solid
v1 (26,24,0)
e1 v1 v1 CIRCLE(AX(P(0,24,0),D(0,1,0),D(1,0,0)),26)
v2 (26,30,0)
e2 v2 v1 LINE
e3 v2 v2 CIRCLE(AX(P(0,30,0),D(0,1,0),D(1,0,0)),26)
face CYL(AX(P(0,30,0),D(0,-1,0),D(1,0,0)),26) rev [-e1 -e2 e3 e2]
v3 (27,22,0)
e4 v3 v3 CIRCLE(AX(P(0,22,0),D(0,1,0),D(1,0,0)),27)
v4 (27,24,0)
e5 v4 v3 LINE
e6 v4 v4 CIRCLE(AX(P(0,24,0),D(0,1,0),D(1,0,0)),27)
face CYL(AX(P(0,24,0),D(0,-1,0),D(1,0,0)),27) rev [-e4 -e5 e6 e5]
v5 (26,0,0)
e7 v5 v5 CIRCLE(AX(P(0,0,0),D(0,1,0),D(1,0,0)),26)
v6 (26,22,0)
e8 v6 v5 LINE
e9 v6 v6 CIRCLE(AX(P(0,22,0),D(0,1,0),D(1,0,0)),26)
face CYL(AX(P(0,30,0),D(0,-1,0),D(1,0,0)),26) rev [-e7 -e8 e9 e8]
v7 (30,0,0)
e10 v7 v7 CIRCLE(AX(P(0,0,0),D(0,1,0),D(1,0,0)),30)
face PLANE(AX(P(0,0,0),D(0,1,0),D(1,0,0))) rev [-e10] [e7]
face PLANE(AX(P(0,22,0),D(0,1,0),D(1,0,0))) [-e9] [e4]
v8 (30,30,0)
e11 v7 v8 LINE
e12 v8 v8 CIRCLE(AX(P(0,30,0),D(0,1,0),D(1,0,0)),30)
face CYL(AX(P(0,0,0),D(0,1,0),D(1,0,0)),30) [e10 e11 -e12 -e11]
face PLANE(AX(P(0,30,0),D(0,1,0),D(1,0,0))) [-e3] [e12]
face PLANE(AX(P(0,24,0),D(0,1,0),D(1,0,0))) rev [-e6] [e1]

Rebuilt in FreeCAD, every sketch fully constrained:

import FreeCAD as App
import Part
import Sketcher
from FreeCAD import Vector

doc = App.newDocument("Part")
body = doc.addObject("PartDesign::Body", "Body")

sketch1 = doc.addObject("Sketcher::SketchObject", "Sketch")
body.addObject(sketch1)
sketch1.AttachmentSupport = (doc.XY_Plane, [""])
sketch1.MapMode = "FlatFace"
sketch1.addGeometry(Part.LineSegment(Vector(26, 22, 0), Vector(26, 0, 0)), False)
sketch1.addGeometry(Part.LineSegment(Vector(26, 0, 0), Vector(30, 0, 0)), False)
sketch1.addGeometry(Part.LineSegment(Vector(30, 0, 0), Vector(30, 30, 0)), False)
sketch1.addGeometry(Part.LineSegment(Vector(30, 30, 0), Vector(26, 30, 0)), False)
sketch1.addGeometry(Part.LineSegment(Vector(26, 30, 0), Vector(26, 24, 0)), False)
sketch1.addGeometry(Part.LineSegment(Vector(26, 24, 0), Vector(27, 24, 0)), False)
sketch1.addGeometry(Part.LineSegment(Vector(27, 24, 0), Vector(27, 22, 0)), False)
sketch1.addGeometry(Part.LineSegment(Vector(27, 22, 0), Vector(26, 22, 0)), False)
sketch1.addConstraint(Sketcher.Constraint("Coincident", 0, 2, 1, 1))
sketch1.addConstraint(Sketcher.Constraint("Coincident", 1, 2, 2, 1))
sketch1.addConstraint(Sketcher.Constraint("Coincident", 2, 2, 3, 1))
sketch1.addConstraint(Sketcher.Constraint("Coincident", 3, 2, 4, 1))
sketch1.addConstraint(Sketcher.Constraint("Coincident", 4, 2, 5, 1))
sketch1.addConstraint(Sketcher.Constraint("Coincident", 5, 2, 6, 1))
sketch1.addConstraint(Sketcher.Constraint("Coincident", 6, 2, 7, 1))
sketch1.addConstraint(Sketcher.Constraint("Coincident", 7, 2, 0, 1))
sketch1.addConstraint(Sketcher.Constraint("Vertical", 0))
sketch1.addConstraint(Sketcher.Constraint("Horizontal", 1))
sketch1.addConstraint(Sketcher.Constraint("Vertical", 2))
sketch1.addConstraint(Sketcher.Constraint("Horizontal", 3))
sketch1.addConstraint(Sketcher.Constraint("Vertical", 4))
sketch1.addConstraint(Sketcher.Constraint("Horizontal", 5))
sketch1.addConstraint(Sketcher.Constraint("Vertical", 6))
sketch1.addConstraint(Sketcher.Constraint("Horizontal", 7))
sketch1.addConstraint(Sketcher.Constraint("PointOnObject", 0, 2, -1))
sketch1.addConstraint(Sketcher.Constraint("Vertical", 0, 2, 3, 2))
sketch1.addConstraint(Sketcher.Constraint("DistanceX", 1, 1, 1, 2, 4.0))
sketch1.addConstraint(Sketcher.Constraint("DistanceX", 5, 1, 5, 2, 1.0))
sketch1.addConstraint(Sketcher.Constraint("DistanceY", 2, 1, 2, 2, 30.0))
sketch1.addConstraint(Sketcher.Constraint("DistanceY", 4, 2, 4, 1, 6.0))
sketch1.addConstraint(Sketcher.Constraint("DistanceY", 6, 2, 6, 1, 2.0))
sketch1.addConstraint(Sketcher.Constraint("DistanceX", -1, 1, 1, 2, 30.0))
revolution = doc.addObject("PartDesign::Revolution", "Revolution")
body.addObject(revolution)
revolution.Profile = sketch1
revolution.ReferenceAxis = (sketch1, ["V_Axis"])
revolution.Angle = 360

doc.recompute()
